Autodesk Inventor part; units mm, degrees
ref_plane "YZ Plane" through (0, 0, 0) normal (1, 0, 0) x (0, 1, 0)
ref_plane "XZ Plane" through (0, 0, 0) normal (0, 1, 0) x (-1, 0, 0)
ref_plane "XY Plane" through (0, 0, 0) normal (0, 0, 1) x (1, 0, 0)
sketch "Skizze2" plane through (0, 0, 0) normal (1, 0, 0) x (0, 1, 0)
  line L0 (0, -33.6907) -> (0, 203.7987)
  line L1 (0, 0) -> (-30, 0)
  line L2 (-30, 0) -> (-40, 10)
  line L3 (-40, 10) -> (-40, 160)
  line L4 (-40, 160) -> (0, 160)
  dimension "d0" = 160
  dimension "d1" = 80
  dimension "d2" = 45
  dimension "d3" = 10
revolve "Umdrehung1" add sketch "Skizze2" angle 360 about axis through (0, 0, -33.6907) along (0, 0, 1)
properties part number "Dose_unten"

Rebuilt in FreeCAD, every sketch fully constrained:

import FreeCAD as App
import Part
import Sketcher

V = App.Vector
Q = App.Units.Quantity


def add_polygon(sketch, points):
    """Adds a closed chain of lines whose ends are joined by coincident constraints."""
    first, n = sketch.GeometryCount, len(points)
    for a, b in zip(points, points[1:] + points[:1]):
        sketch.addGeometry(Part.LineSegment(App.Vector(*a, 0), App.Vector(*b, 0)), False)
    for i in range(n):
        sketch.addConstraint(Sketcher.Constraint("Coincident", first + i, 2, first + (i + 1) % n, 1))

doc = App.newDocument("Part")
body = doc.addObject("PartDesign::Body", "Body")

sketch1 = body.newObject("Sketcher::SketchObject", "Sketch")
sketch1.AttachmentSupport = (doc.getObject("YZ_Plane"), [""])
sketch1.MapMode = "FlatFace"
add_polygon(sketch1, [(-30, 0), (0, 0), (0, 160), (-40, 160), (-40, 10)])
sketch1.addConstraint([
    Sketcher.Constraint("Horizontal", 0),
    Sketcher.Constraint("Vertical", 1),
    Sketcher.Constraint("Horizontal", 2),
    Sketcher.Constraint("Vertical", 3),
    Sketcher.Constraint("Coincident", 0, 2, -1, 1),
    Sketcher.Constraint("DistanceY", 1, 1, 1, 2, Q("160 mm")),
    Sketcher.Constraint("Angle", 4, Q("-45 deg")),
    Sketcher.Constraint("DistanceY", -1, 1, 3, 2, Q("10 mm")),
    Sketcher.Constraint("DistanceX", 0, 1, 0, 2, Q("30 mm")),
])
revolution = body.newObject("PartDesign::Revolution", "Revolution")
revolution.Profile = sketch1
revolution.ReferenceAxis = (sketch1, ["V_Axis"])
revolution.Angle = 360

doc.recompute()
